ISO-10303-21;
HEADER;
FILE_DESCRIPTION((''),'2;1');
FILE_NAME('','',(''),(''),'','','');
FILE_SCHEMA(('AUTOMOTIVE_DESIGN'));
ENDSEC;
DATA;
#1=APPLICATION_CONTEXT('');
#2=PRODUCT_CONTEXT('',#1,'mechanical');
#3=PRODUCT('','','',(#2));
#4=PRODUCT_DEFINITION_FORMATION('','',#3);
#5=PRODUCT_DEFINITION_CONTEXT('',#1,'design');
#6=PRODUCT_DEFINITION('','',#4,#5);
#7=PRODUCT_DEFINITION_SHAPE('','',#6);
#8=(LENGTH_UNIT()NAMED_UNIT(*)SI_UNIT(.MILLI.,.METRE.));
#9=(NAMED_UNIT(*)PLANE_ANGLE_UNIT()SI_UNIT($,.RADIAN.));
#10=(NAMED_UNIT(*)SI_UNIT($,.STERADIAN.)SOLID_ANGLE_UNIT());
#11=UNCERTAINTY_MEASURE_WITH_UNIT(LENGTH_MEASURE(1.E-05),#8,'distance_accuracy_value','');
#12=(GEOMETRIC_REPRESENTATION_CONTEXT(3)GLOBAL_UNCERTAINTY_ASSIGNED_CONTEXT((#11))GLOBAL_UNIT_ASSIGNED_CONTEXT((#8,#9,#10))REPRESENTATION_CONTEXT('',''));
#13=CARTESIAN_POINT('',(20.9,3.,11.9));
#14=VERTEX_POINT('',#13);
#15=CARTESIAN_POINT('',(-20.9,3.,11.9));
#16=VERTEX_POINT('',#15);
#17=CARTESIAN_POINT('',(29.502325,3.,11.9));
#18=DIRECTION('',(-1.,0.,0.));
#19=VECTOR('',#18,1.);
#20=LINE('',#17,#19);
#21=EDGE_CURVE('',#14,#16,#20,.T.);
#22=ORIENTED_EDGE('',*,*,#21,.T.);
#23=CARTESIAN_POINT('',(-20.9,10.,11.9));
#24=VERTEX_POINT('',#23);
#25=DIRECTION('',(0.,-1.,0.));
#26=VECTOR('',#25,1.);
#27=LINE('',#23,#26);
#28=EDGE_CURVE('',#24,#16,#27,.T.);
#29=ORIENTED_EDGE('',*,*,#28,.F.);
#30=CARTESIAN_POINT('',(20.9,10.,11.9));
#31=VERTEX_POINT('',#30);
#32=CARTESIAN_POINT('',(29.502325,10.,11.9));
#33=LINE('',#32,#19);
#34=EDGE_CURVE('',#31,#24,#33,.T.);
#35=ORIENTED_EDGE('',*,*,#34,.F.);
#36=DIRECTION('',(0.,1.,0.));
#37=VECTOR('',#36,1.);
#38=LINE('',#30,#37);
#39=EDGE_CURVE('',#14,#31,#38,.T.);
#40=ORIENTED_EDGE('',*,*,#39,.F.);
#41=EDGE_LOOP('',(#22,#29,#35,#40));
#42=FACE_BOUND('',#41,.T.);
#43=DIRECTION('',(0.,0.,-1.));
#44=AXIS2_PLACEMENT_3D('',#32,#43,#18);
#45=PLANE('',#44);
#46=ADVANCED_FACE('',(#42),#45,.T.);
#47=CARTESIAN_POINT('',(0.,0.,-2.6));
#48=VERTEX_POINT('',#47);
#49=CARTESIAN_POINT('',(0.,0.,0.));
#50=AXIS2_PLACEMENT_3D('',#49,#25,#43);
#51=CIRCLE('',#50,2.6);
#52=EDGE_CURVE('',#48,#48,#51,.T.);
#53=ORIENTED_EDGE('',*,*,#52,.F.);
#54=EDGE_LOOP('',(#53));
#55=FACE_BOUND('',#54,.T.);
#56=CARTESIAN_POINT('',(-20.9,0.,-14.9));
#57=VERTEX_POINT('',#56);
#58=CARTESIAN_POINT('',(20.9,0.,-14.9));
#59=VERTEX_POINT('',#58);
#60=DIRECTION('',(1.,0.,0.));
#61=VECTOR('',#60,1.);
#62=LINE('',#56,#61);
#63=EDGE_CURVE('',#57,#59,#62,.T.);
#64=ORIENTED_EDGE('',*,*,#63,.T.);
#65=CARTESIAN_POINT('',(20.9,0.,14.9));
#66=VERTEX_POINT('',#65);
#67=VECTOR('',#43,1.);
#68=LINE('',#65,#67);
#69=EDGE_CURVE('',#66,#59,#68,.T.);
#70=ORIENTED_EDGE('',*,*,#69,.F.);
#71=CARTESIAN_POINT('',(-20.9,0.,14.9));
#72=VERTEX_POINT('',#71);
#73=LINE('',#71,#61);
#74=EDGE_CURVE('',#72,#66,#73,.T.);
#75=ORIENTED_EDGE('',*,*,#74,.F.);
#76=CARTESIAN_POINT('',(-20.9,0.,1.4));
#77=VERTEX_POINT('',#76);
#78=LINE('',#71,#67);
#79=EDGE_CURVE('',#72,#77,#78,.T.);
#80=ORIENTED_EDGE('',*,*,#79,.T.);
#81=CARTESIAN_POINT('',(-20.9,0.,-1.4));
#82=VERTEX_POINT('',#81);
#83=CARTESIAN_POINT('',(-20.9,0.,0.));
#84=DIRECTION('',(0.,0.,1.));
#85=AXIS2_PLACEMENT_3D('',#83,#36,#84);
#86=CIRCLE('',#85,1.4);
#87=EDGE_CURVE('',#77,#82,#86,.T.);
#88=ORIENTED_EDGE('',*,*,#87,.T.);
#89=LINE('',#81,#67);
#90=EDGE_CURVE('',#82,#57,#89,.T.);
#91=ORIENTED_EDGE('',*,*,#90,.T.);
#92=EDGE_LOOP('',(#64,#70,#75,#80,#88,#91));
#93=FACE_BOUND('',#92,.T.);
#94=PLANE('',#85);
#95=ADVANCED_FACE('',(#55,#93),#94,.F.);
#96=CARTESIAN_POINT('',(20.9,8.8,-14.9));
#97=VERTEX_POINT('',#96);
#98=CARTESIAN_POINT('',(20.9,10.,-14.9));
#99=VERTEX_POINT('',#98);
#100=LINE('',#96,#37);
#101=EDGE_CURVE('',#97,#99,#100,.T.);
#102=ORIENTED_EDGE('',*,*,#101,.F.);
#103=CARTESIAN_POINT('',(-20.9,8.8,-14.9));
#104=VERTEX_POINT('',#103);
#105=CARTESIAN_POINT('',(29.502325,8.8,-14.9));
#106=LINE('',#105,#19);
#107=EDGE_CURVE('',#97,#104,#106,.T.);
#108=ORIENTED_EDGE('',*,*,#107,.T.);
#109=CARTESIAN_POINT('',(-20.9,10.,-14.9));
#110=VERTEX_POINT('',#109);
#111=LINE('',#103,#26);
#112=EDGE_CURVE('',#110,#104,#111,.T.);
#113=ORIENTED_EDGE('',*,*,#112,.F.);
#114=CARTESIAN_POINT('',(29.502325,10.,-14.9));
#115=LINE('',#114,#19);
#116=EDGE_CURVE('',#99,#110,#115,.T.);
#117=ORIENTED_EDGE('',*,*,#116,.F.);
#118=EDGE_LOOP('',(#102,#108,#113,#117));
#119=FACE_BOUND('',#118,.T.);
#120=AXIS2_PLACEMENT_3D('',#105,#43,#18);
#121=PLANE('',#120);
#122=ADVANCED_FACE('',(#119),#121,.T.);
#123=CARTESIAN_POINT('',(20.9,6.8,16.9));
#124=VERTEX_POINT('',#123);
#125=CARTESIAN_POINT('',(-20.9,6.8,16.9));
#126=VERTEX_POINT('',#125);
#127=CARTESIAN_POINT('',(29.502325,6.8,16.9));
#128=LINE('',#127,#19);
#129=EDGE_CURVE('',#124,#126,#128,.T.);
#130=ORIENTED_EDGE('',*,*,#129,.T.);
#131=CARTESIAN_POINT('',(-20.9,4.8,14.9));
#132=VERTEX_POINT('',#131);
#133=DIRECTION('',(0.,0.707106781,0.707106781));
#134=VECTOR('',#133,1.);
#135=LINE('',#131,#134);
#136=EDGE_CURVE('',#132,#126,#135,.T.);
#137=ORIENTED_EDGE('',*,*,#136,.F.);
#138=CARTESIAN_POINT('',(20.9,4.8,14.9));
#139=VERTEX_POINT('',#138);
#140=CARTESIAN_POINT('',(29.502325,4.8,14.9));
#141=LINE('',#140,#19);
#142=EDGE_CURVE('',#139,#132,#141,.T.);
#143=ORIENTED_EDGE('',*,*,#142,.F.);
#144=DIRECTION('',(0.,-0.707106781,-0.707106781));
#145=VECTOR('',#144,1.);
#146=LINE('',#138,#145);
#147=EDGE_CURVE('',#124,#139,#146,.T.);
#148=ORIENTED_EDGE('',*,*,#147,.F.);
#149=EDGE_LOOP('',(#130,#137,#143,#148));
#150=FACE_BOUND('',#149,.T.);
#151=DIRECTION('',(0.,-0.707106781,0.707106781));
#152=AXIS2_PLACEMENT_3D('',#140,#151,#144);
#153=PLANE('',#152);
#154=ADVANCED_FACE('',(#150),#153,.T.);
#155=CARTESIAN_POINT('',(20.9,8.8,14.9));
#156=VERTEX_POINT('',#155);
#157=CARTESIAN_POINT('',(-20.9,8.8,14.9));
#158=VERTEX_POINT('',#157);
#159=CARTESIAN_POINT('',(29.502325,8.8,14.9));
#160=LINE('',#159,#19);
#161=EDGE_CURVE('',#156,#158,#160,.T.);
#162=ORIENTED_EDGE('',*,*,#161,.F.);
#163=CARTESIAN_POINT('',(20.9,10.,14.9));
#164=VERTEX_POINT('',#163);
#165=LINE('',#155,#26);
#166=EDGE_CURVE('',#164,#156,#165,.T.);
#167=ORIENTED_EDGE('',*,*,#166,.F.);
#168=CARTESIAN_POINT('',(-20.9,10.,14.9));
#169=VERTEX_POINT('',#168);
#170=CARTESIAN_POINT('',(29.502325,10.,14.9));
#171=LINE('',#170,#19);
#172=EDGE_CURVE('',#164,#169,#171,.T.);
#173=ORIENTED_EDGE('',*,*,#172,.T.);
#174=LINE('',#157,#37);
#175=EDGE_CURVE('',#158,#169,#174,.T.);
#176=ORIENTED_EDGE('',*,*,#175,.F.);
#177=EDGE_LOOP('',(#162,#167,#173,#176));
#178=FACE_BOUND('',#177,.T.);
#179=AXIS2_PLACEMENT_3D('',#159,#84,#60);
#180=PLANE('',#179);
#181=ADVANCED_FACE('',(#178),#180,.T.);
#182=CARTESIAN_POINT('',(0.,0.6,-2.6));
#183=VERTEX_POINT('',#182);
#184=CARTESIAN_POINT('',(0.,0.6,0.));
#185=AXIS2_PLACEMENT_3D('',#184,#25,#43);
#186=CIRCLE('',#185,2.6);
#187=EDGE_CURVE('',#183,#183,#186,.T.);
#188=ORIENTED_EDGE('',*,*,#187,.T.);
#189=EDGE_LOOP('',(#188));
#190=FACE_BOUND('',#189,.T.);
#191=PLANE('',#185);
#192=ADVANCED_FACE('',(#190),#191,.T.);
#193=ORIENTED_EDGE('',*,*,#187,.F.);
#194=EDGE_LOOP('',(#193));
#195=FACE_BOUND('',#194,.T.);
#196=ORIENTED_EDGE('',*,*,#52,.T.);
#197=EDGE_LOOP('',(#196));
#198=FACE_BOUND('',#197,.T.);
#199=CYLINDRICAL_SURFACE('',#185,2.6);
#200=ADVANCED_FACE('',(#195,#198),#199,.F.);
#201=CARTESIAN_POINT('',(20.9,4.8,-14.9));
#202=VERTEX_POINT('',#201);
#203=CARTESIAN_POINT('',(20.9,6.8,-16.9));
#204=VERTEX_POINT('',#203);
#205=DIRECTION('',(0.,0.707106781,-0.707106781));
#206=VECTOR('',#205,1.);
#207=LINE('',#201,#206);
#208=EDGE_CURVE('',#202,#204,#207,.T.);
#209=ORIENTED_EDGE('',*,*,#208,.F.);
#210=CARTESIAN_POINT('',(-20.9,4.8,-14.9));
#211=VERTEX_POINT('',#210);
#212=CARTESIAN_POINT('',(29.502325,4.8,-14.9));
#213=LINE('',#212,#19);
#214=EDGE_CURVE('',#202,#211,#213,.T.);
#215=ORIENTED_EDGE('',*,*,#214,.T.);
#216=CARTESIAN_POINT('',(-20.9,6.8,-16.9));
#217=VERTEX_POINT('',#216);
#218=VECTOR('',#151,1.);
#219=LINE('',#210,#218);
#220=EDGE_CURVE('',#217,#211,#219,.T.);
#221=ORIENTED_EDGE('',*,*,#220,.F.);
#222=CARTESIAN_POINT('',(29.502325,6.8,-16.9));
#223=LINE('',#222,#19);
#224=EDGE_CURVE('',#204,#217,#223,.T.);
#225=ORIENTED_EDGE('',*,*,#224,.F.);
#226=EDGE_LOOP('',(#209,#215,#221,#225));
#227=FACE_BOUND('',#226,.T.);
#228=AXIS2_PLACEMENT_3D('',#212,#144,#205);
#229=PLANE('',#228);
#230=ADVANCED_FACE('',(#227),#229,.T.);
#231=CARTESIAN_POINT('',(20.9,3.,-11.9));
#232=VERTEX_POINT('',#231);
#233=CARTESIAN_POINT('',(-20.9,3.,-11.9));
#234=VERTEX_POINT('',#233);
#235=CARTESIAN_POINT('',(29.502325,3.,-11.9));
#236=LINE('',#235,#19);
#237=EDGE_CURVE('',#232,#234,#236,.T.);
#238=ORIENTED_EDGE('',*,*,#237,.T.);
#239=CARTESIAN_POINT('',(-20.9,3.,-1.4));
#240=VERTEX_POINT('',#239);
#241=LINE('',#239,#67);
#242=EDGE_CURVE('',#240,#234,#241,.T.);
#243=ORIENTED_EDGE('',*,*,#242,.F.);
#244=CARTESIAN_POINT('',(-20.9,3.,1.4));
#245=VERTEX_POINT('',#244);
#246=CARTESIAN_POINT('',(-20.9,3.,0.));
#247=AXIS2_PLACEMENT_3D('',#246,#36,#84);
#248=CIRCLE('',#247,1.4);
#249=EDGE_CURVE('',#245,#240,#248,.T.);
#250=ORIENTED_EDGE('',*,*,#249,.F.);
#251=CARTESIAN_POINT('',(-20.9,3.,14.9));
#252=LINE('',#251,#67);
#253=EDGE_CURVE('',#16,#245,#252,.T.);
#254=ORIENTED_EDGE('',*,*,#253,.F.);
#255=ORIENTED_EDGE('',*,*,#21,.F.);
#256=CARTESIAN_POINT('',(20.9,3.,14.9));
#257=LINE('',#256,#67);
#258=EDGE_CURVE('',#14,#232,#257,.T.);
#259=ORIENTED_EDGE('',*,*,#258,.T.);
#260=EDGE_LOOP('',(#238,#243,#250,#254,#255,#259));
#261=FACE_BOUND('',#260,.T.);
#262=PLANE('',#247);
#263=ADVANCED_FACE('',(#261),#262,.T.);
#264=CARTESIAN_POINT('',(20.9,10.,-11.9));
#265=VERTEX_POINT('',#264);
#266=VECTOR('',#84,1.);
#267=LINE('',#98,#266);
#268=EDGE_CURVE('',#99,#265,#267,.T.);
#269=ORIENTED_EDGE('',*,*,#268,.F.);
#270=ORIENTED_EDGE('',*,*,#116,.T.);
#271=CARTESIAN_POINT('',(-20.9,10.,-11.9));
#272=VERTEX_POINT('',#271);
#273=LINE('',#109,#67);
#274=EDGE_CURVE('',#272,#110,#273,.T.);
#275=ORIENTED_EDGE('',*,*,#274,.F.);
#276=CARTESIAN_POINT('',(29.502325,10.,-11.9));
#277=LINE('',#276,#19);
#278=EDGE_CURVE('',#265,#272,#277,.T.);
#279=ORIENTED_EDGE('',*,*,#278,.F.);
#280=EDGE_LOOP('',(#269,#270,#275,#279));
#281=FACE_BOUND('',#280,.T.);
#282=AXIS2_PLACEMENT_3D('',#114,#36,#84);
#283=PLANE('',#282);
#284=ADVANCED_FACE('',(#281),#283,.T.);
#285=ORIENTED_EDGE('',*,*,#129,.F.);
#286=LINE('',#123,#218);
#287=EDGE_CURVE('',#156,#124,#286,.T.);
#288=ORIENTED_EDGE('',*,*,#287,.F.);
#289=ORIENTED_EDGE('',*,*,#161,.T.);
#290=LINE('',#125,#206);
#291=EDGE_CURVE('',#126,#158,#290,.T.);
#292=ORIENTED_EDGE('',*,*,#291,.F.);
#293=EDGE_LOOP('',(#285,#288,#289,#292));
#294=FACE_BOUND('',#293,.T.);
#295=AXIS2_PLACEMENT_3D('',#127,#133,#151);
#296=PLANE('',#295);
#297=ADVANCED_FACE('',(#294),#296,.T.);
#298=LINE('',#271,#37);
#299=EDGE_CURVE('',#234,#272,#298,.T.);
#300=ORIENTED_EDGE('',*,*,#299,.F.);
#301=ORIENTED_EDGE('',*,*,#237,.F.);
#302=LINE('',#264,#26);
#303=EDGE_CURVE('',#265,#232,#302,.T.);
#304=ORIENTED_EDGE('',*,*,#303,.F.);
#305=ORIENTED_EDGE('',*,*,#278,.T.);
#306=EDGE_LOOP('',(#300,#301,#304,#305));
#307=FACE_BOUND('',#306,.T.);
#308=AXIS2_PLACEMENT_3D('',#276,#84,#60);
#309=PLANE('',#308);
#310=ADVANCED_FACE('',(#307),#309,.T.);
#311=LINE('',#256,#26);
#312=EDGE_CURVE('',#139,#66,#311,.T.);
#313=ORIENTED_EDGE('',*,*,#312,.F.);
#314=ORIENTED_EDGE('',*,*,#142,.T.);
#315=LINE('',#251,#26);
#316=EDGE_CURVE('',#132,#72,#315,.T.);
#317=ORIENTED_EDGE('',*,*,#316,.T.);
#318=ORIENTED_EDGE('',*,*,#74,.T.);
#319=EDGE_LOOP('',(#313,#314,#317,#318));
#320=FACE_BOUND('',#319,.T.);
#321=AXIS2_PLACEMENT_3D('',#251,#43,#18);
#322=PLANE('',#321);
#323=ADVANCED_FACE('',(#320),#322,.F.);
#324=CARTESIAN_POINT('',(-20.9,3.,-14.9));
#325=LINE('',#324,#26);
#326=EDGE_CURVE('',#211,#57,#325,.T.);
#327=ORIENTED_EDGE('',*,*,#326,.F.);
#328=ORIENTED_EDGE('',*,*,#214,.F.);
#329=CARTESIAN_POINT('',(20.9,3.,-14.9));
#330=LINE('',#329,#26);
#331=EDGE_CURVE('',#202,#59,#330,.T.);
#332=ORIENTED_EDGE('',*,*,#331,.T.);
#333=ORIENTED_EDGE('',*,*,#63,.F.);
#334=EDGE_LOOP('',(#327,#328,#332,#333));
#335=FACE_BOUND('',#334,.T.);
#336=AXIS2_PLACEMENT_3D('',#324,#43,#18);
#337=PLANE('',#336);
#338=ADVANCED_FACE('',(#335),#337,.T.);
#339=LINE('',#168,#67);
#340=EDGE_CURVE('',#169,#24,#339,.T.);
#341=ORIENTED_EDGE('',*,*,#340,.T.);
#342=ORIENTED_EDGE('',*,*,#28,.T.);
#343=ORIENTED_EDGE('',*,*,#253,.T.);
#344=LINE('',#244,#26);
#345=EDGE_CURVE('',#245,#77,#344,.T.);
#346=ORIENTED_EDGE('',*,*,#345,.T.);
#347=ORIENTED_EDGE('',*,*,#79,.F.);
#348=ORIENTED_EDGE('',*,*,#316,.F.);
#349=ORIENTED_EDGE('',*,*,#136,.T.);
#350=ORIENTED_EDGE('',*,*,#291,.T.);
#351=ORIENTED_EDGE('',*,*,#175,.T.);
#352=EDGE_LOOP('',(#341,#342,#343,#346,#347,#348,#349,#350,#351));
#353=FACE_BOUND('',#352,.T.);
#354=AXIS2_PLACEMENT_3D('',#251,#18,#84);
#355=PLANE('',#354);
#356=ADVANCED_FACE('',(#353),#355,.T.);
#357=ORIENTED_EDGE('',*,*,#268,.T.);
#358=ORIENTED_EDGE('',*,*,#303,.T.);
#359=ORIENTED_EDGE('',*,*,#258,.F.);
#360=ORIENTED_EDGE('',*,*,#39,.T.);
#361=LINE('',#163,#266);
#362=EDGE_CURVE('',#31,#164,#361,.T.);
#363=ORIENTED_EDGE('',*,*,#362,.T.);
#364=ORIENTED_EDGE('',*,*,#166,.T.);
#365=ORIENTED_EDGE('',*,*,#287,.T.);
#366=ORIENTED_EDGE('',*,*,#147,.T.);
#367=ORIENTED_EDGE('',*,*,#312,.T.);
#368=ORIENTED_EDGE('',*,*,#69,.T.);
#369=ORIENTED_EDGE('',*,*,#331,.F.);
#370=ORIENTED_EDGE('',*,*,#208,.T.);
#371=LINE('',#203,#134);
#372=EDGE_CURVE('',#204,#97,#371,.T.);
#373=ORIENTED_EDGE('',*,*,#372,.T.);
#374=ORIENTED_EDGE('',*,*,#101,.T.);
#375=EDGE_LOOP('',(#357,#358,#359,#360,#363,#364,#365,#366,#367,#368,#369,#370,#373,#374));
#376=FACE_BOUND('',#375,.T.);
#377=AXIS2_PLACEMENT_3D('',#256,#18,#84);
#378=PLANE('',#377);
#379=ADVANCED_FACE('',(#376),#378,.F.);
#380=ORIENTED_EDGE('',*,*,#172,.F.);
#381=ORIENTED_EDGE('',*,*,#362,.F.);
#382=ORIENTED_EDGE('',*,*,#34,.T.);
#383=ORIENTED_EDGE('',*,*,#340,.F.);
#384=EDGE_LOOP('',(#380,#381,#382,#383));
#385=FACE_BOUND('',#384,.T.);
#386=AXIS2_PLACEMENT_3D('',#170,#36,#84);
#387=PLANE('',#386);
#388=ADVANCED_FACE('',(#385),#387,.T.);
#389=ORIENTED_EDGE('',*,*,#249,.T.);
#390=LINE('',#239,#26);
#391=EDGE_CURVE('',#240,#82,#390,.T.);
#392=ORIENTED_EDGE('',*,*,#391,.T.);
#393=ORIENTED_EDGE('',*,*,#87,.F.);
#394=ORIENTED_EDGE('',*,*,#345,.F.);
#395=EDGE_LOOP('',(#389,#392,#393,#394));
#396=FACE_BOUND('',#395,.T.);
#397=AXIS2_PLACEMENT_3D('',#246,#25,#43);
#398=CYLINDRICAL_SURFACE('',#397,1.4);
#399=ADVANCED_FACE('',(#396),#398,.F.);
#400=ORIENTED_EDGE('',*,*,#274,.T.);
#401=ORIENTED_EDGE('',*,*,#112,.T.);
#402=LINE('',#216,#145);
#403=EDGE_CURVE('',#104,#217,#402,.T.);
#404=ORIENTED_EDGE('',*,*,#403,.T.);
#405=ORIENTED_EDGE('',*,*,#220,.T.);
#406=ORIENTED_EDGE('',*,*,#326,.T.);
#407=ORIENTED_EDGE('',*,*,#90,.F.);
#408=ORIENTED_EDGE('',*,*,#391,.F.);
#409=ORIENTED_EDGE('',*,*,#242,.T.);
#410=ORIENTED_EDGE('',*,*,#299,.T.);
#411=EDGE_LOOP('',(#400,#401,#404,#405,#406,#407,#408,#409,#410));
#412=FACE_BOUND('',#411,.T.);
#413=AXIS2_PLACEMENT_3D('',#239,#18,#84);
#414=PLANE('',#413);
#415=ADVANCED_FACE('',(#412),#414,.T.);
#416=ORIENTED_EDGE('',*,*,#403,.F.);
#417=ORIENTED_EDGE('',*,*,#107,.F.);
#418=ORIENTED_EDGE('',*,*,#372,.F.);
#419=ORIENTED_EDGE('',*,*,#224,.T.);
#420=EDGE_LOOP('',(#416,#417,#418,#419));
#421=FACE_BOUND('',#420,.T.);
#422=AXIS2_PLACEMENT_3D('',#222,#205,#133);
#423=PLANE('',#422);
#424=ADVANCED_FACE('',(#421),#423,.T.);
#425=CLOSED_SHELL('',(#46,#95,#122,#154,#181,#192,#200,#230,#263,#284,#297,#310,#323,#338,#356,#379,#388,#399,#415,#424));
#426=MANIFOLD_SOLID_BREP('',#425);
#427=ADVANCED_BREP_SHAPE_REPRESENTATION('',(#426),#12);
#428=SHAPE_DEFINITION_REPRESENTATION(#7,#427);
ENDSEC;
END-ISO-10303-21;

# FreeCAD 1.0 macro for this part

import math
import FreeCAD as App
import Part
import Sketcher

V = App.Vector
Q = App.Units.Quantity

doc = App.newDocument("Part")
body = doc.addObject("PartDesign::Body", "Body")

sketch1 = body.newObject("Sketcher::SketchObject", "Sketch")
sketch1.AttachmentSupport = (doc.getObject("XZ_Plane"), [""])
sketch1.MapMode = "FlatFace"
sketch1.addGeometry([
    Part.LineSegment(V(-20.9, -14.9, 0), V(-20.9, -1.4, 0)),
    Part.ArcOfCircle(Part.Circle(V(-20.9, 0, 0), V(0, 0, 1), 1.4), math.radians(-90), math.radians(90)),
    Part.LineSegment(V(-20.9, 1.4, 0), V(-20.9, 14.9, 0)),
    Part.LineSegment(V(-20.9, 14.9, 0), V(20.9, 14.9, 0)),
    Part.LineSegment(V(20.9, 14.9, 0), V(20.9, -14.9, 0)),
    Part.LineSegment(V(20.9, -14.9, 0), V(-20.9, -14.9, 0)),
], False)
sketch1.addConstraint([
    Sketcher.Constraint("Coincident", 0, 2, 1, 1),
    Sketcher.Constraint("Coincident", 1, 2, 2, 1),
    Sketcher.Constraint("Coincident", 2, 2, 3, 1),
    Sketcher.Constraint("Coincident", 3, 2, 4, 1),
    Sketcher.Constraint("Coincident", 4, 2, 5, 1),
    Sketcher.Constraint("Coincident", 5, 2, 0, 1),
    Sketcher.Constraint("Vertical", 0),
    Sketcher.Constraint("Vertical", 2),
    Sketcher.Constraint("Horizontal", 3),
    Sketcher.Constraint("Vertical", 4),
    Sketcher.Constraint("Horizontal", 5),
    Sketcher.Constraint("Symmetric", 2, 2, 4, 2, -1, 1),
    Sketcher.Constraint("Symmetric", 0, 2, 1, 2, -1),
    Sketcher.Constraint("Vertical", 1, 3, 0, 2),
    Sketcher.Constraint("Radius", 1, Q("1.4 mm")),
    Sketcher.Constraint("DistanceX", 3, 1, 3, 2, Q("41.8 mm")),
    Sketcher.Constraint("DistanceY", 0, 1, 0, 2, Q("13.5 mm")),
])
pad1 = body.newObject("PartDesign::Pad", "Pad")
pad1.Profile = sketch1
pad1.Length = 3
pad1.Reversed = True

sketch2 = body.newObject("Sketcher::SketchObject", "Sketch001")
sketch2.AttachmentSupport = (doc.getObject("YZ_Plane"), [""])
sketch2.MapMode = "FlatFace"
sketch2.AttachmentOffset = App.Placement(V(0, 0, -20.9), App.Rotation())
sketch2.addGeometry([
    Part.LineSegment(V(4.8, -14.9, 0), V(3, -14.9, 0)),
    Part.LineSegment(V(3, -14.9, 0), V(3, -11.9, 0)),
    Part.LineSegment(V(3, -11.9, 0), V(10, -11.9, 0)),
    Part.LineSegment(V(10, -11.9, 0), V(10, -14.9, 0)),
    Part.LineSegment(V(10, -14.9, 0), V(8.8, -14.9, 0)),
    Part.LineSegment(V(8.8, -14.9, 0), V(6.8, -16.9, 0)),
    Part.LineSegment(V(6.8, -16.9, 0), V(4.8, -14.9, 0)),
    Part.LineSegment(V(3, 11.9, 0), V(3, 14.9, 0)),
    Part.LineSegment(V(3, 14.9, 0), V(4.8, 14.9, 0)),
    Part.LineSegment(V(4.8, 14.9, 0), V(6.8, 16.9, 0)),
    Part.LineSegment(V(6.8, 16.9, 0), V(8.8, 14.9, 0)),
    Part.LineSegment(V(8.8, 14.9, 0), V(10, 14.9, 0)),
    Part.LineSegment(V(10, 14.9, 0), V(10, 11.9, 0)),
    Part.LineSegment(V(10, 11.9, 0), V(3, 11.9, 0)),
], False)
sketch2.addConstraint([
    Sketcher.Constraint("Coincident", 0, 2, 1, 1),
    Sketcher.Constraint("Coincident", 1, 2, 2, 1),
    Sketcher.Constraint("Coincident", 2, 2, 3, 1),
    Sketcher.Constraint("Coincident", 3, 2, 4, 1),
    Sketcher.Constraint("Coincident", 4, 2, 5, 1),
    Sketcher.Constraint("Coincident", 5, 2, 6, 1),
    Sketcher.Constraint("Coincident", 6, 2, 0, 1),
    Sketcher.Constraint("Coincident", 7, 2, 8, 1),
    Sketcher.Constraint("Coincident", 8, 2, 9, 1),
    Sketcher.Constraint("Coincident", 9, 2, 10, 1),
    Sketcher.Constraint("Coincident", 10, 2, 11, 1),
    Sketcher.Constraint("Coincident", 11, 2, 12, 1),
    Sketcher.Constraint("Coincident", 12, 2, 13, 1),
    Sketcher.Constraint("Coincident", 13, 2, 7, 1),
    Sketcher.Constraint("Horizontal", 0),
    Sketcher.Constraint("Vertical", 1),
    Sketcher.Constraint("Horizontal", 2),
    Sketcher.Constraint("Vertical", 3),
    Sketcher.Constraint("Horizontal", 4),
    Sketcher.Constraint("Vertical", 7),
    Sketcher.Constraint("Horizontal", 8),
    Sketcher.Constraint("Horizontal", 11),
    Sketcher.Constraint("Vertical", 12),
    Sketcher.Constraint("Horizontal", 13),
    Sketcher.Constraint("Symmetric", 0, 2, 7, 2, -1),
    Sketcher.Constraint("Symmetric", 5, 2, 9, 2, -1),
    Sketcher.Constraint("Symmetric", 4, 2, 10, 2, -1),
    Sketcher.Constraint("Symmetric", 2, 2, 12, 2, -1),
    Sketcher.Constraint("Perpendicular", 5, 6),
    Sketcher.Constraint("Perpendicular", 6, 9),
    Sketcher.Constraint("Perpendicular", 9, 10),
    Sketcher.Constraint("Horizontal", 0, 2, 3, 2),
    Sketcher.Constraint("DistanceX", 2, 1, 2, 2, Q("7 mm")),
    Sketcher.Constraint("DistanceY", 1, 1, 1, 2, Q("3 mm")),
    Sketcher.Constraint("DistanceX", 0, 2, 0, 1, Q("1.8 mm")),
    Sketcher.Constraint("DistanceX", 4, 2, 4, 1, Q("1.2 mm")),
    Sketcher.Constraint("DistanceX", -1, 1, 0, 2, Q("3 mm")),
    Sketcher.Constraint("DistanceY", 0, 2, -1, 1, Q("14.9 mm")),
])
pad2 = body.newObject("PartDesign::Pad", "Pad001")
pad2.Profile = sketch2
pad2.Length = 41.8

sketch3 = body.newObject("Sketcher::SketchObject", "Sketch002")
sketch3.AttachmentSupport = (doc.getObject("XZ_Plane"), [""])
sketch3.MapMode = "FlatFace"
sketch3.addGeometry(Part.Circle(V(0, 0, 0), V(0, 0, 1), 2.6), False)
sketch3.addConstraint([
    Sketcher.Constraint("Coincident", 0, 3, -1, 1),
    Sketcher.Constraint("Diameter", 0, Q("5.2 mm")),
])
pocket1 = body.newObject("PartDesign::Pocket", "Pocket")
pocket1.Profile = sketch3
pocket1.Length = 0.6

doc.recompute()
